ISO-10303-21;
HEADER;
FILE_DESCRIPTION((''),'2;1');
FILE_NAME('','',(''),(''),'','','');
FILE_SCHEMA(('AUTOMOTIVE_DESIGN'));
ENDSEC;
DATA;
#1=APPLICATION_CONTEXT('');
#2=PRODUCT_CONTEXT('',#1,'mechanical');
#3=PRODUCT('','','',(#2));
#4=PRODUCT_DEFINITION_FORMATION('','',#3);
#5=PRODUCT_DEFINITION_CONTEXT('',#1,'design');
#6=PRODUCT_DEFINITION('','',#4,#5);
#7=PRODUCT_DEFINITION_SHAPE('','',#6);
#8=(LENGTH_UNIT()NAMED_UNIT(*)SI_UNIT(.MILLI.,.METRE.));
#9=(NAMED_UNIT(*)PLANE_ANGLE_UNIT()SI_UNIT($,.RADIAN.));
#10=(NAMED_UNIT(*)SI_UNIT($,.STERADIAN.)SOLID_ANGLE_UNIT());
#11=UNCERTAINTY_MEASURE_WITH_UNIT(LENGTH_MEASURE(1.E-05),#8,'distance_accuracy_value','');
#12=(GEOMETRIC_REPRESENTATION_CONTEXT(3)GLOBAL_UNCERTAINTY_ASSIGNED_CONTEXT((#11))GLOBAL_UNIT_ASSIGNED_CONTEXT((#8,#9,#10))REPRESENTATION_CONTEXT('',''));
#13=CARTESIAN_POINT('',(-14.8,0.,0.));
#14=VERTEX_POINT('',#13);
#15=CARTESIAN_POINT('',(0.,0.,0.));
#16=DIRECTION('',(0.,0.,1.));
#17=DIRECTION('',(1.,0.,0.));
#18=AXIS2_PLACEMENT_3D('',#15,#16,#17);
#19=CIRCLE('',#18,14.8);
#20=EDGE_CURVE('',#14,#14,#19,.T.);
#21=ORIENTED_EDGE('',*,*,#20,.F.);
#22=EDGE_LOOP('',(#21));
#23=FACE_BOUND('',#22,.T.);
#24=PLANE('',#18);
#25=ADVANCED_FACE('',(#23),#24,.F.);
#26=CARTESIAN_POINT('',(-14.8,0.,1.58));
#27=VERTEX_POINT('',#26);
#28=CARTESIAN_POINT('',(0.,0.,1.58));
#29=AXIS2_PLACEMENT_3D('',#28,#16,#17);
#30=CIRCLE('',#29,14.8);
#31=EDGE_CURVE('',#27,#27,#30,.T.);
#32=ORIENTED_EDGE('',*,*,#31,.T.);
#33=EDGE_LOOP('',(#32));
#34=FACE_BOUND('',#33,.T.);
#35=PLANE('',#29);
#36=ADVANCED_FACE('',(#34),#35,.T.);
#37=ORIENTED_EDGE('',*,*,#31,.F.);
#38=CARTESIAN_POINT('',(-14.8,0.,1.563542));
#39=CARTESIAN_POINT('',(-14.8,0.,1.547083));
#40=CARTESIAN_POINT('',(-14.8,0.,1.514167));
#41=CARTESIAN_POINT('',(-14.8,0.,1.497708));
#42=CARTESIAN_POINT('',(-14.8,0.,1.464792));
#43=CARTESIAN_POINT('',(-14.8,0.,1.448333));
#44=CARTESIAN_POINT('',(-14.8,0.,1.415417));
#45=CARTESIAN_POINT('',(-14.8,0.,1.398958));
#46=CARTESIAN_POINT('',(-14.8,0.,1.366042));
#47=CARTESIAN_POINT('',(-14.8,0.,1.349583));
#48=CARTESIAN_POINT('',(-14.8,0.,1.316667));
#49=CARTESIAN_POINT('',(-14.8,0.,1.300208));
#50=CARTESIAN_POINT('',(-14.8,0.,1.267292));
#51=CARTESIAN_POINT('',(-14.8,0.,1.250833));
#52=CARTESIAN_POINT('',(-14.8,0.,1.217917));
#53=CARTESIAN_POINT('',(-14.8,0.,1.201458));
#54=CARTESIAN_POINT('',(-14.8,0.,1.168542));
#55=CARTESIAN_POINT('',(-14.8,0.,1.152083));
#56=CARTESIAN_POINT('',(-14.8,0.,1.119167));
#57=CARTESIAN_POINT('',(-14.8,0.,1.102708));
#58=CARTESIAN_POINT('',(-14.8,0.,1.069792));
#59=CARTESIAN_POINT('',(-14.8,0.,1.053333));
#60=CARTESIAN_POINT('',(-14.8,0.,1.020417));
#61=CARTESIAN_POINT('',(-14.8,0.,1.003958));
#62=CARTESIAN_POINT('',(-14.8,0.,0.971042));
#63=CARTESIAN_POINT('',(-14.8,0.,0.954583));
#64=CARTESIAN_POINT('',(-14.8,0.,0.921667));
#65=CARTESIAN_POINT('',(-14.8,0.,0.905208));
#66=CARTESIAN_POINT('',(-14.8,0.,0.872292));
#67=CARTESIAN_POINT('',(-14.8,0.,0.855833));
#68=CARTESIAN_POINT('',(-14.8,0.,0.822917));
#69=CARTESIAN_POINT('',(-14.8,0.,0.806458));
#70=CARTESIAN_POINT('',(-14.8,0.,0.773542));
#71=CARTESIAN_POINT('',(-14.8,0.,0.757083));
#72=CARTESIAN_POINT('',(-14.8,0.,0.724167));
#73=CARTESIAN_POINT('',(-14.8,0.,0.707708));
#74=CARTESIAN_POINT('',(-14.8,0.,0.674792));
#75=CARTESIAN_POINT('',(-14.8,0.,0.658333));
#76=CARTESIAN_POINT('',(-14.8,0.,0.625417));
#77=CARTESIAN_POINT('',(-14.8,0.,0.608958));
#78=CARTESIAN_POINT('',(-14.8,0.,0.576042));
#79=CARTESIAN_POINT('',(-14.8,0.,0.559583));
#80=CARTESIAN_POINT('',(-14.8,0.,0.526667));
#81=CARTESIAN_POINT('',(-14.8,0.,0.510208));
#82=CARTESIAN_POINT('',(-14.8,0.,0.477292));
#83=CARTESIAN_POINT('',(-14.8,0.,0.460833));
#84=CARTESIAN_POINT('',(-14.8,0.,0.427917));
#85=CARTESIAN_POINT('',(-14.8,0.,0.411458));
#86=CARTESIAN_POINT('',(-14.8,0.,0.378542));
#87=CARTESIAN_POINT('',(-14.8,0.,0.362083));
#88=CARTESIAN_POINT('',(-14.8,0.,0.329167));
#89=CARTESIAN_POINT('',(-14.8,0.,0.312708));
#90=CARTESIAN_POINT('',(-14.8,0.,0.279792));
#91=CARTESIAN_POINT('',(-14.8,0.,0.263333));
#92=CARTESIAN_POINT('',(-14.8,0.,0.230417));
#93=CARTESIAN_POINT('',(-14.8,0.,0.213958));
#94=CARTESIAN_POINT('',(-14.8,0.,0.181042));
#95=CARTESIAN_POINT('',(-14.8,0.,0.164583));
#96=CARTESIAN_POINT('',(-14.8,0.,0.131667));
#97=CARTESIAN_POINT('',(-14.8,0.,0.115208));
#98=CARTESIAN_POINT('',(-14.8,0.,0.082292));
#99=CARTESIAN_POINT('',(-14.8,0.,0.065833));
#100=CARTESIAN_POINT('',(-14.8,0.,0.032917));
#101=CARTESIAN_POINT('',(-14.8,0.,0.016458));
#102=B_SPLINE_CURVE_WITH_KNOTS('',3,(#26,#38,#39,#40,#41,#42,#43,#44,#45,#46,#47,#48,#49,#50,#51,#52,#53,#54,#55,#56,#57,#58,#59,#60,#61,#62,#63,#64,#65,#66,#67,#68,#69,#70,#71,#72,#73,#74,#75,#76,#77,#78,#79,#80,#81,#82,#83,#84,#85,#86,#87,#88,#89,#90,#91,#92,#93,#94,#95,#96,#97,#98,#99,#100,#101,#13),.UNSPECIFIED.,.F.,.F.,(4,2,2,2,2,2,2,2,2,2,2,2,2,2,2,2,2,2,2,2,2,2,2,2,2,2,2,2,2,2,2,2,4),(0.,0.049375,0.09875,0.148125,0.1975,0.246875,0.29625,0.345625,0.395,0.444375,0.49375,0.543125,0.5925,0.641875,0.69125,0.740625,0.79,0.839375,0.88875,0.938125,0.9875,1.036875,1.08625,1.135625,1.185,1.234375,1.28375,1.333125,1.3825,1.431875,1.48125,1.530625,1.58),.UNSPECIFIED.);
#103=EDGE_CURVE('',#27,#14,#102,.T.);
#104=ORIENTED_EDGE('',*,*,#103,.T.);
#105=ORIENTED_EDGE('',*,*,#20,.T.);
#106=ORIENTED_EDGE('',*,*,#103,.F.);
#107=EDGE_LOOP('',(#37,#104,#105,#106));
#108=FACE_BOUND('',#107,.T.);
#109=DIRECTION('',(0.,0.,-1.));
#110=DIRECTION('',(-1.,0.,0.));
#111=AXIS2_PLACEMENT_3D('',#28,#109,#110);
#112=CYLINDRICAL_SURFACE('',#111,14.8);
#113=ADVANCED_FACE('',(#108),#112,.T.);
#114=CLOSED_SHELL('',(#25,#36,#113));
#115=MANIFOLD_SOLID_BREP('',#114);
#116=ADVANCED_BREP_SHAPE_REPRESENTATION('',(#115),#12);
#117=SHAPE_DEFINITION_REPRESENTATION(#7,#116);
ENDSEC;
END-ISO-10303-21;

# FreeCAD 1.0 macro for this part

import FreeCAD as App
import Part
import Sketcher

V = App.Vector
Q = App.Units.Quantity

doc = App.newDocument("Part")
body = doc.addObject("PartDesign::Body", "Body")

sketch1 = body.newObject("Sketcher::SketchObject", "Sketch")
sketch1.AttachmentSupport = (doc.getObject("XY_Plane"), [""])
sketch1.MapMode = "FlatFace"
sketch1.addGeometry(Part.Circle(V(0, 0, 0), V(0, 0, 1), 15), False)
sketch1.addConstraint(Sketcher.Constraint("Coincident", 0, 3, -1, 1))
sketch1.addConstraint(Sketcher.Constraint("Diameter", 0, Q("29.6 mm")))
pad1 = body.newObject("PartDesign::Pad", "Pad")
pad1.Profile = sketch1
pad1.Length = 1.58

doc.recompute()
